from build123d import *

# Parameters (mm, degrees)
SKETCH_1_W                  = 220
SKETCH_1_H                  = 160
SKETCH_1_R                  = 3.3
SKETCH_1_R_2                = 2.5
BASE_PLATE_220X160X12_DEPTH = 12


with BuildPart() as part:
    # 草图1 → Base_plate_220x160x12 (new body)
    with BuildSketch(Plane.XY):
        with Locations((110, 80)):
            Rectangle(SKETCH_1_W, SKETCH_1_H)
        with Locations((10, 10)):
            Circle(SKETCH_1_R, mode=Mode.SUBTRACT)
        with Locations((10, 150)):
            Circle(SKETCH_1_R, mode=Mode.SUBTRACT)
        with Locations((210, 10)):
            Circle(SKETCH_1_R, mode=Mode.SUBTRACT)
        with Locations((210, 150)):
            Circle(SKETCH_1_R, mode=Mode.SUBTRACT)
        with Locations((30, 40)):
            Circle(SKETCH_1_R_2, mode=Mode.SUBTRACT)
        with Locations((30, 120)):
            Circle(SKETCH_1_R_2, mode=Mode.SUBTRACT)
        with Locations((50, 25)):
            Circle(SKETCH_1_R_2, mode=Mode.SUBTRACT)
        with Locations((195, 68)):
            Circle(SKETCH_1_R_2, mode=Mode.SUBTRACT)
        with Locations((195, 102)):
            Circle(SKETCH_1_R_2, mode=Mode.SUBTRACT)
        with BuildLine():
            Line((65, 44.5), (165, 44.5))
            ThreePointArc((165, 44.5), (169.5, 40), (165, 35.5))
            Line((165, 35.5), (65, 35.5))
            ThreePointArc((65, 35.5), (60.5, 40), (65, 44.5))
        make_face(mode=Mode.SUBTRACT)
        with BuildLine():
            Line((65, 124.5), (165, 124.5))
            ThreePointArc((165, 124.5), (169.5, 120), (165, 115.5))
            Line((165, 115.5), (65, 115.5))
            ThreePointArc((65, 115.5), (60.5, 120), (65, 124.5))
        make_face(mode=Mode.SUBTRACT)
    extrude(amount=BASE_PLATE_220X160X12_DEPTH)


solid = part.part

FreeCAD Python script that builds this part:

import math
import FreeCAD as App
import Part
import Sketcher

V = App.Vector
Q = App.Units.Quantity


def add_polygon(sketch, points):
    """Adds a closed chain of lines whose ends are joined by coincident constraints."""
    first, n = sketch.GeometryCount, len(points)
    for a, b in zip(points, points[1:] + points[:1]):
        sketch.addGeometry(Part.LineSegment(App.Vector(*a, 0), App.Vector(*b, 0)), False)
    for i in range(n):
        sketch.addConstraint(Sketcher.Constraint("Coincident", first + i, 2, first + (i + 1) % n, 1))

doc = App.newDocument("Part")
body = doc.addObject("PartDesign::Body", "Body")

# Sketch on XY plane
sketch1 = body.newObject("Sketcher::SketchObject", "Sketch")
sketch1.AttachmentSupport = (doc.getObject("XY_Plane"), [""])
sketch1.MapMode = "FlatFace"
add_polygon(sketch1, [(0, 160), (0, 0), (220, 0), (220, 160)])  # lines 0-3
sketch1.addGeometry(Part.Circle(V(10, 10, 0), V(0, 0, 1), 3.3), False)  # 4
sketch1.addGeometry(Part.Circle(V(50, 25, 0), V(0, 0, 1), 2.5), False)  # 5
sketch1.addGeometry(Part.Circle(V(30, 40, 0), V(0, 0, 1), 2.5), False)  # 6
sketch1.addGeometry(Part.ArcOfCircle(Part.Circle(V(65, 40, 0), V(0, 0, 1), 4.5), math.radians(90), math.radians(270)), False)  # 7
sketch1.addGeometry(Part.LineSegment(V(65, 44.5, 0), V(165, 44.5, 0)), False)  # 8
sketch1.addGeometry(Part.ArcOfCircle(Part.Circle(V(165, 40, 0), V(0, 0, 1), 4.5), math.radians(-90), math.radians(90)), False)  # 9
sketch1.addGeometry(Part.LineSegment(V(165, 35.5, 0), V(65, 35.5, 0)), False)  # 10
sketch1.addGeometry(Part.Circle(V(210, 10, 0), V(0, 0, 1), 3.3), False)  # 11
sketch1.addGeometry(Part.Circle(V(195, 68, 0), V(0, 0, 1), 2.5), False)  # 12
sketch1.addGeometry(Part.Circle(V(30, 120, 0), V(0, 0, 1), 2.5), False)  # 13
sketch1.addGeometry(Part.Circle(V(10, 150, 0), V(0, 0, 1), 3.3), False)  # 14
sketch1.addGeometry(Part.Circle(V(195, 102, 0), V(0, 0, 1), 2.5), False)  # 15
sketch1.addGeometry(Part.ArcOfCircle(Part.Circle(V(65, 120, 0), V(0, 0, 1), 4.5), math.radians(90), math.radians(270)), False)  # 16
sketch1.addGeometry(Part.LineSegment(V(65, 124.5, 0), V(165, 124.5, 0)), False)  # 17
sketch1.addGeometry(Part.ArcOfCircle(Part.Circle(V(165, 120, 0), V(0, 0, 1), 4.5), math.radians(-90), math.radians(90)), False)  # 18
sketch1.addGeometry(Part.LineSegment(V(165, 115.5, 0), V(65, 115.5, 0)), False)  # 19
sketch1.addGeometry(Part.Circle(V(210, 150, 0), V(0, 0, 1), 3.3), False)  # 20
sketch1.addConstraint([
    Sketcher.Constraint("Tangent", 7, 1, 8, 1),
    Sketcher.Constraint("Tangent", 8, 2, 9, 2),
    Sketcher.Constraint("Tangent", 9, 1, 10, 1),
    Sketcher.Constraint("Tangent", 10, 2, 7, 2),
    Sketcher.Constraint("Tangent", 16, 1, 17, 1),
    Sketcher.Constraint("Tangent", 17, 2, 18, 2),
    Sketcher.Constraint("Tangent", 18, 1, 19, 1),
    Sketcher.Constraint("Tangent", 19, 2, 16, 2),
    Sketcher.Constraint("Vertical", 0),
    Sketcher.Constraint("Horizontal", 1),
    Sketcher.Constraint("Vertical", 2),
    Sketcher.Constraint("Horizontal", 3),
    Sketcher.Constraint("Horizontal", 8),
    Sketcher.Constraint("Horizontal", 10),
    Sketcher.Constraint("Horizontal", 17),
    Sketcher.Constraint("Horizontal", 19),
    Sketcher.Constraint("Coincident", 0, 2, -1, 1),
    Sketcher.Constraint("Equal", 5, 6),
    Sketcher.Constraint("Equal", 4, 11),
    Sketcher.Constraint("Equal", 6, 12),
    Sketcher.Constraint("Equal", 12, 13),
    Sketcher.Constraint("Equal", 11, 14),
    Sketcher.Constraint("Equal", 13, 15),
    Sketcher.Constraint("Equal", 9, 16),
    Sketcher.Constraint("Equal", 14, 20),
    Sketcher.Constraint("Horizontal", 6, 3, 7, 3),
    Sketcher.Constraint("Horizontal", 4, 3, 11, 3),
    Sketcher.Constraint("Horizontal", 13, 3, 16, 3),
    Sketcher.Constraint("Horizontal", 14, 3, 20, 3),
    Sketcher.Constraint("Vertical", 6, 3, 13, 3),
    Sketcher.Constraint("Vertical", 4, 3, 14, 3),
    Sketcher.Constraint("Vertical", 12, 3, 15, 3),
    Sketcher.Constraint("Vertical", 7, 3, 16, 3),
    Sketcher.Constraint("Vertical", 9, 3, 18, 3),
    Sketcher.Constraint("Vertical", 11, 3, 20, 3),
    Sketcher.Constraint("Diameter", 5, Q("5 mm")),
    Sketcher.Constraint("Diameter", 4, Q("6.6 mm")),
    Sketcher.Constraint("Radius", 7, Q("4.5 mm")),
    Sketcher.Constraint("DistanceX", 1, 1, 1, 2, Q("220 mm")),
    Sketcher.Constraint("DistanceX", 8, 1, 8, 2, Q("100 mm")),
    Sketcher.Constraint("DistanceY", 0, 2, 0, 1, Q("160 mm")),
    Sketcher.Constraint("DistanceX", -1, 1, 4, 3, Q("10 mm")),
    Sketcher.Constraint("DistanceY", -1, 1, 4, 3, Q("10 mm")),
    Sketcher.Constraint("DistanceX", -1, 1, 5, 3, Q("50 mm")),
    Sketcher.Constraint("DistanceY", -1, 1, 5, 3, Q("25 mm")),
    Sketcher.Constraint("DistanceX", -1, 1, 6, 3, Q("30 mm")),
    Sketcher.Constraint("DistanceY", -1, 1, 6, 3, Q("40 mm")),
    Sketcher.Constraint("DistanceX", -1, 1, 7, 3, Q("65 mm")),
    Sketcher.Constraint("DistanceX", -1, 1, 11, 3, Q("210 mm")),
    Sketcher.Constraint("DistanceX", -1, 1, 12, 3, Q("195 mm")),
    Sketcher.Constraint("DistanceY", -1, 1, 12, 3, Q("68 mm")),
    Sketcher.Constraint("DistanceY", -1, 1, 13, 3, Q("120 mm")),
    Sketcher.Constraint("DistanceY", -1, 1, 14, 3, Q("150 mm")),
    Sketcher.Constraint("DistanceY", -1, 1, 15, 3, Q("102 mm")),
])
pad1 = body.newObject("PartDesign::Pad", "Pad")
pad1.Profile = sketch1
pad1.Length = 12

doc.recompute()
